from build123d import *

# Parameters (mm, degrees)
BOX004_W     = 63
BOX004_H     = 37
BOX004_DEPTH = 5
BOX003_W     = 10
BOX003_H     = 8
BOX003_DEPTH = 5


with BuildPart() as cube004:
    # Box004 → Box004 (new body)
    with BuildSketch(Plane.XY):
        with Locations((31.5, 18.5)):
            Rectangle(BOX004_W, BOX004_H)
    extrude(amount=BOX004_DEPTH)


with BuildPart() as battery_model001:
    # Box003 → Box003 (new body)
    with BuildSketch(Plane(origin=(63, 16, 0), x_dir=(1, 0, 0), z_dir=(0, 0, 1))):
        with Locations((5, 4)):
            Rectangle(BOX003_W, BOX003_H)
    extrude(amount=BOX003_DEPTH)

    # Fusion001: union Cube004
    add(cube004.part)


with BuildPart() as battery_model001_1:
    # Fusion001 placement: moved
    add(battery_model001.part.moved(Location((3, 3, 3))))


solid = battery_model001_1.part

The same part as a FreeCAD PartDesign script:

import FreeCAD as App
import Part
import Sketcher
Q = App.Units.Quantity


def add_polygon(sketch, points):
    """Adds a closed chain of lines whose ends are joined by coincident constraints."""
    first, n = sketch.GeometryCount, len(points)
    for a, b in zip(points, points[1:] + points[:1]):
        sketch.addGeometry(Part.LineSegment(App.Vector(*a, 0), App.Vector(*b, 0)), False)
    for i in range(n):
        sketch.addConstraint(Sketcher.Constraint("Coincident", first + i, 2, first + (i + 1) % n, 1))

doc = App.newDocument("Part")
body = doc.addObject("PartDesign::Body", "Body")

sketch1 = doc.addObject("Sketcher::SketchObject", "Sketch")
body.addObject(sketch1)
sketch1.AttachmentSupport = (doc.XY_Plane, [""])
sketch1.MapMode = "FlatFace"
add_polygon(sketch1, [(0, 37), (0, 0), (63, 0), (63, 37)])
sketch1.addConstraint([
    Sketcher.Constraint("Vertical", 0),
    Sketcher.Constraint("Horizontal", 1),
    Sketcher.Constraint("Vertical", 2),
    Sketcher.Constraint("Horizontal", 3),
    Sketcher.Constraint("Coincident", 0, 2, -1, 1),
    Sketcher.Constraint("DistanceX", 1, 1, 1, 2, Q("63 mm")),
    Sketcher.Constraint("DistanceY", 0, 2, 0, 1, Q("37 mm")),
])
pad1 = doc.addObject("PartDesign::Pad", "Pad")
body.addObject(pad1)
pad1.Profile = sketch1
pad1.Length = 5
body2 = doc.addObject("PartDesign::Body", "Body001")

sketch2 = doc.addObject("Sketcher::SketchObject", "Sketch001")
body2.addObject(sketch2)
sketch2.AttachmentSupport = (doc.getObject("XY_Plane001"), [""])
sketch2.MapMode = "FlatFace"
add_polygon(sketch2, [(63, 24), (63, 16), (73, 16), (73, 24)])
sketch2.addConstraint([
    Sketcher.Constraint("Vertical", 0),
    Sketcher.Constraint("Horizontal", 1),
    Sketcher.Constraint("Vertical", 2),
    Sketcher.Constraint("Horizontal", 3),
    Sketcher.Constraint("DistanceX", 1, 1, 1, 2, Q("10 mm")),
    Sketcher.Constraint("DistanceY", 0, 2, 0, 1, Q("8 mm")),
    Sketcher.Constraint("DistanceX", -1, 1, 0, 2, Q("63 mm")),
    Sketcher.Constraint("DistanceY", -1, 1, 0, 2, Q("16 mm")),
])
pad2 = doc.addObject("PartDesign::Pad", "Pad001")
body2.addObject(pad2)
pad2.Profile = sketch2
pad2.Length = 5
doc.recompute()

boolean = doc.addObject("PartDesign::Boolean", "Boolean")
body2.addObject(boolean)
boolean.Type = "Fuse"
boolean.addObjects([body])
body3 = doc.addObject("PartDesign::Body", "Body002")
doc.recompute()

body2.Placement = App.Placement(App.Vector(3, 3, 3), App.Rotation(App.Vector(0, 0, 1), 0))
boolean2 = doc.addObject("PartDesign::Boolean", "Boolean001")
body3.addObject(boolean2)
boolean2.Type = "Fuse"
boolean2.addObjects([body2])

doc.recompute()
